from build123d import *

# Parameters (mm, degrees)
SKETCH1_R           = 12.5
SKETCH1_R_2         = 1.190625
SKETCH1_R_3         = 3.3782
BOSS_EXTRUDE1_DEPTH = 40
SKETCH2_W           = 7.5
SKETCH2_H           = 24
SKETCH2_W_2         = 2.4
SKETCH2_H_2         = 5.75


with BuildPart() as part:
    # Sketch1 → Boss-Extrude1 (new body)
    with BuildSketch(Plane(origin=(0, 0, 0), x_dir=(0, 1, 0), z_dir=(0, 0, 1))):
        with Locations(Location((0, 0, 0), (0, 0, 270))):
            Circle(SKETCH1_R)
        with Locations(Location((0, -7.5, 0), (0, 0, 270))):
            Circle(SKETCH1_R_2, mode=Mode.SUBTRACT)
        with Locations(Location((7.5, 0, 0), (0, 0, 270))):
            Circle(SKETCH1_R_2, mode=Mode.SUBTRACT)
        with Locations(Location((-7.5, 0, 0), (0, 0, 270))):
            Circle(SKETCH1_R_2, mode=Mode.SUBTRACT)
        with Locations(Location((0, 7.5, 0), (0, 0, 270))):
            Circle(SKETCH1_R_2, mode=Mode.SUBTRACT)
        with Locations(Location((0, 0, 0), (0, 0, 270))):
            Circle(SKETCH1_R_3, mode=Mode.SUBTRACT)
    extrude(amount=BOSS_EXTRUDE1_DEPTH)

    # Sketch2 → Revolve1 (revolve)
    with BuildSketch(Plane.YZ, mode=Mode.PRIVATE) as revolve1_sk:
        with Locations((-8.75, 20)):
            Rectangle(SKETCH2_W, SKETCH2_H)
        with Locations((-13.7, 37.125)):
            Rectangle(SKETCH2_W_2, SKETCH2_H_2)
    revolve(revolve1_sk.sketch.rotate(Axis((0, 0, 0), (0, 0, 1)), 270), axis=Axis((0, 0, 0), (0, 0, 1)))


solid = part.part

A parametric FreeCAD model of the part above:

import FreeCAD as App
import Part
import Sketcher
from FreeCAD import Vector
Q = App.Units.Quantity


def add_polygon(sketch, points):
    """Adds a closed chain of lines whose ends are joined by coincident constraints."""
    first, n = sketch.GeometryCount, len(points)
    for a, b in zip(points, points[1:] + points[:1]):
        sketch.addGeometry(Part.LineSegment(App.Vector(*a, 0), App.Vector(*b, 0)), False)
    for i in range(n):
        sketch.addConstraint(Sketcher.Constraint("Coincident", first + i, 2, first + (i + 1) % n, 1))

doc = App.newDocument("Part")
body = doc.addObject("PartDesign::Body", "Body")

sketch1 = body.newObject("Sketcher::SketchObject", "Sketch")
sketch1.AttachmentSupport = (doc.getObject("XY_Plane"), [""])
sketch1.MapMode = "FlatFace"
sketch1.addGeometry([
    Part.Circle(Vector(0, 0, 0), Vector(0, 0, 1), 12.5),
    Part.Circle(Vector(-7.5, 0, 0), Vector(0, 0, 1), 1.2),
    Part.Circle(Vector(0, -7.5, 0), Vector(0, 0, 1), 1.2),
    Part.Circle(Vector(0, 7.5, 0), Vector(0, 0, 1), 1.2),
    Part.Circle(Vector(0, 0, 0), Vector(0, 0, 1), 3.4),
    Part.Circle(Vector(7.5, 0, 0), Vector(0, 0, 1), 1.2),
], False)
sketch1.addConstraint([
    Sketcher.Constraint("Coincident", 0, 3, -1, 1),
    Sketcher.Constraint("Coincident", 4, 3, -1, 1),
    Sketcher.Constraint("Equal", 1, 2),
    Sketcher.Constraint("Equal", 2, 3),
    Sketcher.Constraint("Equal", 3, 5),
    Sketcher.Constraint("Symmetric", 2, 3, 3, 3, -1, 1),
    Sketcher.Constraint("Symmetric", 1, 3, 5, 3, -1, 1),
    Sketcher.Constraint("PointOnObject", 1, 3, -1),
    Sketcher.Constraint("PointOnObject", 2, 3, -2),
    Sketcher.Constraint("Diameter", 0, Q("25 mm")),
    Sketcher.Constraint("DistanceY", 2, 3, 3, 3, Q("15 mm")),
    Sketcher.Constraint("DistanceX", 1, 3, 5, 3, Q("15 mm")),
    Sketcher.Constraint("Diameter", 4, Q("6.7564 mm")),
    Sketcher.Constraint("Diameter", 1, Q("2.38125 mm")),
])
pad1 = body.newObject("PartDesign::Pad", "Pad")
pad1.Profile = sketch1
pad1.Length = 40

sketch2 = body.newObject("Sketcher::SketchObject", "Sketch001")
sketch2.AttachmentSupport = (doc.getObject("YZ_Plane"), [""])
sketch2.MapMode = "FlatFace"
add_polygon(sketch2, [(-12.5, 32), (-12.5, 8), (-5, 8), (-5, 32)])
add_polygon(sketch2, [(-14.9, 40), (-14.9, 34.2), (-12.5, 34.2), (-12.5, 40)])
sketch2.addConstraint([
    Sketcher.Constraint("Vertical", 0),
    Sketcher.Constraint("Horizontal", 1),
    Sketcher.Constraint("Vertical", 2),
    Sketcher.Constraint("Horizontal", 3),
    Sketcher.Constraint("Vertical", 4),
    Sketcher.Constraint("Horizontal", 5),
    Sketcher.Constraint("Vertical", 6),
    Sketcher.Constraint("Horizontal", 7),
    Sketcher.Constraint("Vertical", 3, 2, 5, 2),
    Sketcher.Constraint("DistanceY", 0, 2, 0, 1, Q("24 mm")),
    Sketcher.Constraint("DistanceX", 1, 1, 1, 2, Q("7.5 mm")),
    Sketcher.Constraint("DistanceX", 5, 1, 5, 2, Q("2.4 mm")),
    Sketcher.Constraint("DistanceY", -1, 1, 0, 2, Q("8 mm")),
    Sketcher.Constraint("DistanceX", 1, 2, -1, 1, Q("5 mm")),
    Sketcher.Constraint("DistanceY", -1, 1, 6, 2, Q("40 mm")),
    Sketcher.Constraint("DistanceY", 4, 2, 4, 1, Q("5.75 mm")),
])
revolution = body.newObject("PartDesign::Revolution", "Revolution")
revolution.Profile = sketch2
revolution.ReferenceAxis = (sketch2, ["V_Axis"])
revolution.Angle = 360

doc.recompute()
